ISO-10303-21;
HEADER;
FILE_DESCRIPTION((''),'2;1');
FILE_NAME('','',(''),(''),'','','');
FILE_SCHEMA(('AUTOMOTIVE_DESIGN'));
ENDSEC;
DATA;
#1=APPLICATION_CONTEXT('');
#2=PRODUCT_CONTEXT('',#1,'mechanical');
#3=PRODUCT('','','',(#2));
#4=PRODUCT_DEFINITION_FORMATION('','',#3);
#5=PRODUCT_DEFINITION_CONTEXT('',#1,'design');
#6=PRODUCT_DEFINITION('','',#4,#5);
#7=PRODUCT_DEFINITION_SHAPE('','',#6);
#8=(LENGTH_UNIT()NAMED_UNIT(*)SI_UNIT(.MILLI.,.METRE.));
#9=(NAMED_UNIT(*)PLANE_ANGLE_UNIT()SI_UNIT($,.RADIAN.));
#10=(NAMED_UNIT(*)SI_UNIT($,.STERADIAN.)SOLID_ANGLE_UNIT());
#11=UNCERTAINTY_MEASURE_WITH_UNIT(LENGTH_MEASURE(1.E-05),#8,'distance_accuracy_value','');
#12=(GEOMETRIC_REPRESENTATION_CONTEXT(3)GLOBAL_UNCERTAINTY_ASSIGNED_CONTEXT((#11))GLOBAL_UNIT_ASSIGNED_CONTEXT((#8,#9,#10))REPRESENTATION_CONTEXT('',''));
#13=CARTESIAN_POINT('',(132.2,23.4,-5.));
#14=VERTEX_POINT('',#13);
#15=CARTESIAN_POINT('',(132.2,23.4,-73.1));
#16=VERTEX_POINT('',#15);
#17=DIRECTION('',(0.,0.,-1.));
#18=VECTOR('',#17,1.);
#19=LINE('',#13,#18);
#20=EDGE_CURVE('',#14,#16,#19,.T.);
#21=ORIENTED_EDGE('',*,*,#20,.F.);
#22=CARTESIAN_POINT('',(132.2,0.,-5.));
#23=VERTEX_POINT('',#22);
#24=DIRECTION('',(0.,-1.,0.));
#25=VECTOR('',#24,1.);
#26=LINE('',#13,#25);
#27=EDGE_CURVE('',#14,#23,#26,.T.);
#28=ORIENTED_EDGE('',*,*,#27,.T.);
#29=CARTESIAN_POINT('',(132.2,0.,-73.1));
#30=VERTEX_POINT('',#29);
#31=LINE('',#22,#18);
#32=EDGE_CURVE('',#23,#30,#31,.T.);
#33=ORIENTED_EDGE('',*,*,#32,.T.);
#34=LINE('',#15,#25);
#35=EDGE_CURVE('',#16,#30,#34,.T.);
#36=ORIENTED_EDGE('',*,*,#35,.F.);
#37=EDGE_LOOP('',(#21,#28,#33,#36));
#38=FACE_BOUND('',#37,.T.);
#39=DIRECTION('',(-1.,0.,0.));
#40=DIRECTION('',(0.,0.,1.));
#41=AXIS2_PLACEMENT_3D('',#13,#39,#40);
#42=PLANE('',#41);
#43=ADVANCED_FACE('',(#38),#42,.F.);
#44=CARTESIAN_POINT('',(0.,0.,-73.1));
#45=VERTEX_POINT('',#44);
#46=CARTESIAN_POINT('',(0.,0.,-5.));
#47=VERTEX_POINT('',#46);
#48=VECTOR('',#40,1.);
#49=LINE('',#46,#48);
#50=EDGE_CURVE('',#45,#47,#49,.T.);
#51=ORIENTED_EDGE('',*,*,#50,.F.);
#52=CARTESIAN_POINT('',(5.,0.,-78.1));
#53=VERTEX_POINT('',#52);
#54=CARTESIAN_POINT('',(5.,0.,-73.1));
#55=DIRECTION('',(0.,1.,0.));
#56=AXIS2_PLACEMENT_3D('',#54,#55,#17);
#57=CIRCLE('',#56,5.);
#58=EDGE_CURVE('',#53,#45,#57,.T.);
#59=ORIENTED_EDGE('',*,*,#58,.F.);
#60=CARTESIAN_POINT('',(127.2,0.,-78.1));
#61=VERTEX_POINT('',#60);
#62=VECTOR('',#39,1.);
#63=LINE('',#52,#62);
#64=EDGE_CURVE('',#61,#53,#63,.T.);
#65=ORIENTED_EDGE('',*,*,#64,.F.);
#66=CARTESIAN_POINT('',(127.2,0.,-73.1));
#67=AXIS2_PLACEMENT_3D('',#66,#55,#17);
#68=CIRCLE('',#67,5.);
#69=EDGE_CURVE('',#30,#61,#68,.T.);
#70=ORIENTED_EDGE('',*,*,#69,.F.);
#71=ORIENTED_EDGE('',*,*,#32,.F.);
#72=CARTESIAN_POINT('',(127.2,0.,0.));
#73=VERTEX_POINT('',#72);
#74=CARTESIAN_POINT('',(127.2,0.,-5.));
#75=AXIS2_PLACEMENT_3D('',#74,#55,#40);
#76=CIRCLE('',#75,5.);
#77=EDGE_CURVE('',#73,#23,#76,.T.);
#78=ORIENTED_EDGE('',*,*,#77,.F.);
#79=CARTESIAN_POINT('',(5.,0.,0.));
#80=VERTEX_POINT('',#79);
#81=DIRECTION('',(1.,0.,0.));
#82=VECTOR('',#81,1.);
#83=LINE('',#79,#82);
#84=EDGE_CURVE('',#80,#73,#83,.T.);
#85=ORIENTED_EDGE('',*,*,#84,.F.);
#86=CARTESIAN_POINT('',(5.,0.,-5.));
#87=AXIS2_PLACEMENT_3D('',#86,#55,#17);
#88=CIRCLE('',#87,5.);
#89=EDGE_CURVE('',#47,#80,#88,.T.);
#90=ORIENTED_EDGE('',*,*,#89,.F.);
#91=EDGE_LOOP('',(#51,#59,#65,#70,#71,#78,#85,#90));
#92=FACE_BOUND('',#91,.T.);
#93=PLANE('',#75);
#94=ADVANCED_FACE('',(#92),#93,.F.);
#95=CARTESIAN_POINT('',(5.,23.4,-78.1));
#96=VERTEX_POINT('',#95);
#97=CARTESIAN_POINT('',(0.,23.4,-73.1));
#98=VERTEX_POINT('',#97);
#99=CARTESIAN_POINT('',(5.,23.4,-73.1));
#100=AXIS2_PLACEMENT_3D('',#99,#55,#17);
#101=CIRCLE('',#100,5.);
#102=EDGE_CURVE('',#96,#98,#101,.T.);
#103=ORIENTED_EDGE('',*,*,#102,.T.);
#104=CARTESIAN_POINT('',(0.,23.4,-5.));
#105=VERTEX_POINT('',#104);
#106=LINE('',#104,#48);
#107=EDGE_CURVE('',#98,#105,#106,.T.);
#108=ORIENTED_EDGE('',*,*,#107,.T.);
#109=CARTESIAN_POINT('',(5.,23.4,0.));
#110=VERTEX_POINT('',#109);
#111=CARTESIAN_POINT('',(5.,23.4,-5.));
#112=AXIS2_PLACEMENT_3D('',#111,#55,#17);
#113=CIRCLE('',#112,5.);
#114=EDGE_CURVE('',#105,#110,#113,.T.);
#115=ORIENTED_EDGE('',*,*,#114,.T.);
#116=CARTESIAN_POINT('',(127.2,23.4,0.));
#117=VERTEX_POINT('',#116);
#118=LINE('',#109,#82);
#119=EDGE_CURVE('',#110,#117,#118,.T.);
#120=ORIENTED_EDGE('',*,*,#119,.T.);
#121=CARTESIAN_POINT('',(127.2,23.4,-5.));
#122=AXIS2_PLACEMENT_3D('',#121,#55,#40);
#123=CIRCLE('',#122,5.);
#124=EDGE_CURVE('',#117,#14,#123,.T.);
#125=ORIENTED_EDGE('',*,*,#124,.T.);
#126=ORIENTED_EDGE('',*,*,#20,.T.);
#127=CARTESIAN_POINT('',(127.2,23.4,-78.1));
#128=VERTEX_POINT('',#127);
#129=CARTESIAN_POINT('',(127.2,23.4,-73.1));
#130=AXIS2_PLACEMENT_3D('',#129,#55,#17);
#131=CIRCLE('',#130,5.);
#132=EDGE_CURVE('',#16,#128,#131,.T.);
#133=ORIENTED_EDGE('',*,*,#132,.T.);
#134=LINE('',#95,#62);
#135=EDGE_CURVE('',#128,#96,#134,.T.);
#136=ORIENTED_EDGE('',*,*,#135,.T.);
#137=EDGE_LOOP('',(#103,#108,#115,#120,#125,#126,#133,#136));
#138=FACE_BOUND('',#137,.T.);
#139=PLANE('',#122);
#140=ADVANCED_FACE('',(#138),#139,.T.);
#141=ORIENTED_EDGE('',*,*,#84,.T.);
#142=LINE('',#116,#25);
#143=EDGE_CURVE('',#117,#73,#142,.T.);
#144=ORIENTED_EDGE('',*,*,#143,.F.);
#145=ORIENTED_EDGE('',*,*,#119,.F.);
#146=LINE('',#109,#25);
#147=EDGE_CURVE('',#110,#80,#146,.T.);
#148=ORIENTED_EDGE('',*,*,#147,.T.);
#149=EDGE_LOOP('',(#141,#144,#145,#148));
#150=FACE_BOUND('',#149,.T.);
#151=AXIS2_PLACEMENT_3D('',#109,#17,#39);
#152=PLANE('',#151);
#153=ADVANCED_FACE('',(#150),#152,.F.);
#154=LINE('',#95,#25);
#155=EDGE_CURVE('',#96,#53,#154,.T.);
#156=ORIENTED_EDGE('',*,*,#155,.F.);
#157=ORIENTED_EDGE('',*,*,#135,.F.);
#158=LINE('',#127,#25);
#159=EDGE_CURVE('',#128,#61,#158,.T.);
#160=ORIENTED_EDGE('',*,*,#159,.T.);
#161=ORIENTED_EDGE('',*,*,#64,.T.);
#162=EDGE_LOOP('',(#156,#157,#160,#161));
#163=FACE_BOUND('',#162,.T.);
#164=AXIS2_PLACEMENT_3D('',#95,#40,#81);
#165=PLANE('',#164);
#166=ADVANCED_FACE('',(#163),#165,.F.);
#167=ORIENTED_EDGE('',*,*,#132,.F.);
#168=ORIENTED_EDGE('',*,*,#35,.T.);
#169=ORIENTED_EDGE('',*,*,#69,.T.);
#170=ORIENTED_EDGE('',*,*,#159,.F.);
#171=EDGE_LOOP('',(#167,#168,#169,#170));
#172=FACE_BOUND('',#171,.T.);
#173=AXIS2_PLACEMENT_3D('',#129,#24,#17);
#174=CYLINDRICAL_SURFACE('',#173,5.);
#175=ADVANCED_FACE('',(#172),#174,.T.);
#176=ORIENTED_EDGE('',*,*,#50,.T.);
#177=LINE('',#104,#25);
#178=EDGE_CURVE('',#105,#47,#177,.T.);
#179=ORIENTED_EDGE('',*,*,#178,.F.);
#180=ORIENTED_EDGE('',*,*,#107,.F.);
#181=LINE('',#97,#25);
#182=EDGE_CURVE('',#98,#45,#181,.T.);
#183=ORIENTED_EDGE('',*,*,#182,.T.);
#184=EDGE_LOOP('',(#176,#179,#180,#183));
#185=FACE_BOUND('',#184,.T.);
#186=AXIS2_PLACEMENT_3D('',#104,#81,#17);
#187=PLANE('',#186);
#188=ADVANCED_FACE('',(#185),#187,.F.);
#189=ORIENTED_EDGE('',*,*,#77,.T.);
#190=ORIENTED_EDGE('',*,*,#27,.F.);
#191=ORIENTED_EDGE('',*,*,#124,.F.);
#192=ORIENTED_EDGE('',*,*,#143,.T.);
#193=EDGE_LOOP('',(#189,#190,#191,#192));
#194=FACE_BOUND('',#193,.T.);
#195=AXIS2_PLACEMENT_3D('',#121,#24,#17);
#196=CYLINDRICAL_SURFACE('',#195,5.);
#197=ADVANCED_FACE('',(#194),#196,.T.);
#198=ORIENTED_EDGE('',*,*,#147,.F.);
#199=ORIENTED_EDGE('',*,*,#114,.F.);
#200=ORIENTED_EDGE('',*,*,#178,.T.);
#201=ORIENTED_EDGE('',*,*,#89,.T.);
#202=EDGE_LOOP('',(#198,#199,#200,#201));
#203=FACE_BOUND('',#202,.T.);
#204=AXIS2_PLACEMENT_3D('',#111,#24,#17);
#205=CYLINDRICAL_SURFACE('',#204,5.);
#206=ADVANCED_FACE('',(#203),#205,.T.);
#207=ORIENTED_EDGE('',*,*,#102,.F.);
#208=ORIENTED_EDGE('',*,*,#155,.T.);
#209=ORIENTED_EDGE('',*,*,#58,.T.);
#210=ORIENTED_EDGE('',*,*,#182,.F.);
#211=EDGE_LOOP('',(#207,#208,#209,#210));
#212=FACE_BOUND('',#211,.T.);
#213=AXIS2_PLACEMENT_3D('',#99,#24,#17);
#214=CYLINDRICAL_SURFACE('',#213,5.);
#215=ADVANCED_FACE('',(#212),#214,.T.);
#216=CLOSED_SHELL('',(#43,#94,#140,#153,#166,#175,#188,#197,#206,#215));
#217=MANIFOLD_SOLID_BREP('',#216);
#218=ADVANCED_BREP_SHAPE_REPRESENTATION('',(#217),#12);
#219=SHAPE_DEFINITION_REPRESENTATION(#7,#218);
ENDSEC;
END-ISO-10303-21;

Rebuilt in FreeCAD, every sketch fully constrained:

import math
import FreeCAD as App
import Part
import Sketcher

V = App.Vector

doc = App.newDocument("Part")
body = doc.addObject("PartDesign::Body", "Body")

# Sketch on XZ plane
sketch1 = doc.addObject("Sketcher::SketchObject", "Sketch")
body.addObject(sketch1)
sketch1.AttachmentSupport = (doc.XZ_Plane, [""])
sketch1.MapMode = "FlatFace"
sketch1.addGeometry([
    Part.LineSegment(V(5, 0, 0), V(127.2, 0, 0)),  # 0
    Part.ArcOfCircle(Part.Circle(V(127.2, -5, 0), V(0, 0, 1), 5), math.radians(0), math.radians(90)),  # 1
    Part.LineSegment(V(132.2, -5, 0), V(132.2, -73.1, 0)),  # 2
    Part.ArcOfCircle(Part.Circle(V(127.2, -73.1, 0), V(0, 0, 1), 5), math.radians(-90), math.radians(0)),  # 3
    Part.LineSegment(V(127.2, -78.1, 0), V(5, -78.1, 0)),  # 4
    Part.ArcOfCircle(Part.Circle(V(5, -73.1, 0), V(0, 0, 1), 5), math.radians(180), math.radians(270)),  # 5
    Part.LineSegment(V(0, -73.1, 0), V(0, -5, 0)),  # 6
    Part.ArcOfCircle(Part.Circle(V(5, -5, 0), V(0, 0, 1), 5), math.radians(90), math.radians(180)),  # 7
], False)
sketch1.addConstraint([
    Sketcher.Constraint("Tangent", 0, 2, 1, 2),
    Sketcher.Constraint("Tangent", 1, 1, 2, 1),
    Sketcher.Constraint("Tangent", 2, 2, 3, 2),
    Sketcher.Constraint("Tangent", 3, 1, 4, 1),
    Sketcher.Constraint("Tangent", 4, 2, 5, 2),
    Sketcher.Constraint("Tangent", 5, 1, 6, 1),
    Sketcher.Constraint("Tangent", 6, 2, 7, 2),
    Sketcher.Constraint("Tangent", 7, 1, 0, 1),
    Sketcher.Constraint("Horizontal", 0),
    Sketcher.Constraint("Vertical", 2),
    Sketcher.Constraint("Horizontal", 4),
    Sketcher.Constraint("Vertical", 6),
    Sketcher.Constraint("Equal", 1, 3),
    Sketcher.Constraint("Equal", 3, 5),
    Sketcher.Constraint("Equal", 5, 7),
    Sketcher.Constraint("PointOnObject", 0, 2, -1),
    Sketcher.Constraint("PointOnObject", 5, 1, -2),
    Sketcher.Constraint("Radius", 1, 5.0),
    Sketcher.Constraint("DistanceX", 0, 1, 0, 2, 122.2),
    Sketcher.Constraint("DistanceY", 2, 2, 2, 1, 68.1),
])
pad1 = doc.addObject("PartDesign::Pad", "Pad")
body.addObject(pad1)
pad1.Profile = sketch1
pad1.Length = 23.4
pad1.Reversed = True

doc.recompute()
